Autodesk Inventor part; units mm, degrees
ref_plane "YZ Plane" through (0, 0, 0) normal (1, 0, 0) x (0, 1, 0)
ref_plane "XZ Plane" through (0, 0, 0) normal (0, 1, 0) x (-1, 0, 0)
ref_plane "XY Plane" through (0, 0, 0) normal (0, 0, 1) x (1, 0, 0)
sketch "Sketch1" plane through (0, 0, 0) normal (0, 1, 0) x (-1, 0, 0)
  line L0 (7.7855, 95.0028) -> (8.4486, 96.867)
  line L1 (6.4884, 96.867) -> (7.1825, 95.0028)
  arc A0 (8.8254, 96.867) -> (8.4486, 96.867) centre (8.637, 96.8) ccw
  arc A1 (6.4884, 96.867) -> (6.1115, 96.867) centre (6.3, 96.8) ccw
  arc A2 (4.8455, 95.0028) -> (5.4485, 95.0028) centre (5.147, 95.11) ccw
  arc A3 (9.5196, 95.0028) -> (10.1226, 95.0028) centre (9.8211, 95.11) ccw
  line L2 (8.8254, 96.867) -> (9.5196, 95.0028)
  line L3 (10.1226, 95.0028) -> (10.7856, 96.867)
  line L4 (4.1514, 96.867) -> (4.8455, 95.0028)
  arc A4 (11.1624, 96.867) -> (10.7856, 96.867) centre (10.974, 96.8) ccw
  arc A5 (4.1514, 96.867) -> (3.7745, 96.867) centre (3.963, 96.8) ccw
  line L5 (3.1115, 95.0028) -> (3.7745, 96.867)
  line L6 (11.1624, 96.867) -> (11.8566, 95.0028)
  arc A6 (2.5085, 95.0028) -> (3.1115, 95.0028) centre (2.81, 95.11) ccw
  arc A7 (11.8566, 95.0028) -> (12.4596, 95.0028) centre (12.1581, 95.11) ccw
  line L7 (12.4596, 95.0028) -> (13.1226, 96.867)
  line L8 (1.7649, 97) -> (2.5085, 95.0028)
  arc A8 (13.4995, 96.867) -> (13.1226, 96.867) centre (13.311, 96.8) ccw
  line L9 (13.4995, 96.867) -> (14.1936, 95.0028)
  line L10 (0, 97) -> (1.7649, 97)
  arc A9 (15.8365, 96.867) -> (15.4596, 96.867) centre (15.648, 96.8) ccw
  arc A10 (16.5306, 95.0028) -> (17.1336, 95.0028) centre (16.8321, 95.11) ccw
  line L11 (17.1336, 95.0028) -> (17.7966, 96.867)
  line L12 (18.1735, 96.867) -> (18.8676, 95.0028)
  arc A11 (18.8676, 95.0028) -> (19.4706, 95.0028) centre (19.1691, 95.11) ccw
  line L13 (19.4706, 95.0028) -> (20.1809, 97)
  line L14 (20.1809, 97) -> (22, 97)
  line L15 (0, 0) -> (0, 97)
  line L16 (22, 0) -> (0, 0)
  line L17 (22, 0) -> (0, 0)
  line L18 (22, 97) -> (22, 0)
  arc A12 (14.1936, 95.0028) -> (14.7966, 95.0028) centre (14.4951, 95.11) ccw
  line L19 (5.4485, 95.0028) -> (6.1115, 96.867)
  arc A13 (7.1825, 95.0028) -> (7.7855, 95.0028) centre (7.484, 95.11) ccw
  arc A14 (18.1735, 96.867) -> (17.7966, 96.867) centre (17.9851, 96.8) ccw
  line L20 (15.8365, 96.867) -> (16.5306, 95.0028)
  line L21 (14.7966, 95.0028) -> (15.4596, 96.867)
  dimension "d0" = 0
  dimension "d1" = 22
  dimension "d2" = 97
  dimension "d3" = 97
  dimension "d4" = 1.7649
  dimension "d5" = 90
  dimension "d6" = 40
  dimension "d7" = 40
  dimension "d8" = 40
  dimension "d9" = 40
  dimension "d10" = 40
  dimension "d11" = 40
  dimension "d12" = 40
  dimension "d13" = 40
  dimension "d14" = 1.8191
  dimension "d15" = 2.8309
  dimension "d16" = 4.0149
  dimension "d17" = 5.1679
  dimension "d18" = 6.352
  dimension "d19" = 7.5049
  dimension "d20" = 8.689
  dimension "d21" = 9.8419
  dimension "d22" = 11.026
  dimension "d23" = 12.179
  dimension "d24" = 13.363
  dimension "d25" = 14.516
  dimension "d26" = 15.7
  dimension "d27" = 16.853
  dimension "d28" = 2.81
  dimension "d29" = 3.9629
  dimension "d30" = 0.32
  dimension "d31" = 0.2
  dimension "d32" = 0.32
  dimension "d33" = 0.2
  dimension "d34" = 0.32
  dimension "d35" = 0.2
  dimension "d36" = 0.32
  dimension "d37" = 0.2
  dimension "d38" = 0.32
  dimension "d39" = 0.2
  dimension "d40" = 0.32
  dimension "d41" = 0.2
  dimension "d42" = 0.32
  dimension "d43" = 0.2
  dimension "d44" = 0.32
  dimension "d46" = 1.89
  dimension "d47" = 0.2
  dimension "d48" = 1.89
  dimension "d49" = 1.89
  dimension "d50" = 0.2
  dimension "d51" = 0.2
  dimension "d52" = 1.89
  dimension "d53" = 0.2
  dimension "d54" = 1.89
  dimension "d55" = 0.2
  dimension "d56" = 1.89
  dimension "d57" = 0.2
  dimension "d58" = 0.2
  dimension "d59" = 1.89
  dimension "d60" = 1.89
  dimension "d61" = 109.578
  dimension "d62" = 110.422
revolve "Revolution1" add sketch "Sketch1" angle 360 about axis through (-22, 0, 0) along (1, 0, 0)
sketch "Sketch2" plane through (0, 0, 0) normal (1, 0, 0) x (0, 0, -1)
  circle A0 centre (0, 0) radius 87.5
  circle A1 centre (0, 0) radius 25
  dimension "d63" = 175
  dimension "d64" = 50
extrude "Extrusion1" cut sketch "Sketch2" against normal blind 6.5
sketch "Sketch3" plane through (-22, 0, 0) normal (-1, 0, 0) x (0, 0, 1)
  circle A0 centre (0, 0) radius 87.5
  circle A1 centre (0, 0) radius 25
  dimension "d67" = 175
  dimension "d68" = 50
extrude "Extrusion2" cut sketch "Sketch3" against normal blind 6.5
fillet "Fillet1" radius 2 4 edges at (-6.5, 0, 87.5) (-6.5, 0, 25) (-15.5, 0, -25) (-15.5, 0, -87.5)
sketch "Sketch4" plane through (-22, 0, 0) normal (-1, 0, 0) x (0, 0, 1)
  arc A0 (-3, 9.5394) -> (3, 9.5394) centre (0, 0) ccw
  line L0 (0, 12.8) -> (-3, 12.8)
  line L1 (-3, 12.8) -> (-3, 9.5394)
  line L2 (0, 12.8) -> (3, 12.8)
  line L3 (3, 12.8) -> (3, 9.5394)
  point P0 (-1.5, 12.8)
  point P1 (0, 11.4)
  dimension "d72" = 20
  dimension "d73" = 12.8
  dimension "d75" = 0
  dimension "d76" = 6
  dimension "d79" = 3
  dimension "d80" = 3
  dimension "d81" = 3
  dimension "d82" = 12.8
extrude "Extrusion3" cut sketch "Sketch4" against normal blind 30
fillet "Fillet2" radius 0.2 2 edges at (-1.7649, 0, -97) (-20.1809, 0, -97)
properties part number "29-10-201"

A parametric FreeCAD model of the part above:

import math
import FreeCAD as App
import Part
import Sketcher
Q = App.Units.Quantity


def edges_at(feature, points):
    """Names of the edges that pass closest to the given points."""
    edges = feature.Shape.Edges
    near = lambda p: min(range(len(edges)), key=lambda i: edges[i].distToShape(Part.Vertex(*p))[0])
    return sorted({f"Edge{near(p) + 1}" for p in points})

doc = App.newDocument("Part")
body = doc.addObject("PartDesign::Body", "Body")

# Sketch on XZ plane
sketch1 = body.newObject("Sketcher::SketchObject", "Sketch")
sketch1.AttachmentSupport = (doc.getObject("XZ_Plane"), [""])
sketch1.MapMode = "FlatFace"
sketch1.addGeometry([
    Part.LineSegment(App.Vector(-8.45, 96.87, 0), App.Vector(-7.79, 95, 0)),  # 0
    Part.ArcOfCircle(Part.Circle(App.Vector(-7.48, 95.11, 0), App.Vector(0, 0, 1), 0.32), math.radians(-160), math.radians(-20)),  # 1
    Part.LineSegment(App.Vector(-7.18, 95, 0), App.Vector(-6.49, 96.87, 0)),  # 2
    Part.ArcOfCircle(Part.Circle(App.Vector(-6.3, 96.8, 0), App.Vector(0, 0, 1), 0.2), math.radians(20), math.radians(160)),  # 3
    Part.LineSegment(App.Vector(-6.11, 96.87, 0), App.Vector(-5.45, 95, 0)),  # 4
    Part.ArcOfCircle(Part.Circle(App.Vector(-5.15, 95.11, 0), App.Vector(0, 0, 1), 0.32), math.radians(-160), math.radians(-20)),  # 5
    Part.LineSegment(App.Vector(-4.85, 95, 0), App.Vector(-4.15, 96.87, 0)),  # 6
    Part.ArcOfCircle(Part.Circle(App.Vector(-3.96, 96.8, 0), App.Vector(0, 0, 1), 0.2), math.radians(20), math.radians(160)),  # 7
    Part.LineSegment(App.Vector(-3.77, 96.87, 0), App.Vector(-3.11, 95, 0)),  # 8
    Part.ArcOfCircle(Part.Circle(App.Vector(-2.81, 95.11, 0), App.Vector(0, 0, 1), 0.32), math.radians(-160), math.radians(-20)),  # 9
    Part.LineSegment(App.Vector(-2.51, 95, 0), App.Vector(-1.76, 97, 0)),  # 10
    Part.LineSegment(App.Vector(-1.76, 97, 0), App.Vector(0, 97, 0)),  # 11
    Part.LineSegment(App.Vector(0, 97, 0), App.Vector(0, 0, 0)),  # 12
    Part.LineSegment(App.Vector(0, 0, 0), App.Vector(-22, 0, 0)),  # 13
    Part.LineSegment(App.Vector(-22, 0, 0), App.Vector(-22, 97, 0)),  # 14
    Part.LineSegment(App.Vector(-22, 97, 0), App.Vector(-20.18, 97, 0)),  # 15
    Part.LineSegment(App.Vector(-20.18, 97, 0), App.Vector(-19.47, 95, 0)),  # 16
    Part.ArcOfCircle(Part.Circle(App.Vector(-19.17, 95.11, 0), App.Vector(0, 0, 1), 0.32), math.radians(-160), math.radians(-20)),  # 17
    Part.LineSegment(App.Vector(-18.87, 95, 0), App.Vector(-18.17, 96.87, 0)),  # 18
    Part.ArcOfCircle(Part.Circle(App.Vector(-17.99, 96.8, 0), App.Vector(0, 0, 1), 0.2), math.radians(20), math.radians(160)),  # 19
    Part.LineSegment(App.Vector(-17.8, 96.87, 0), App.Vector(-17.13, 95, 0)),  # 20
    Part.ArcOfCircle(Part.Circle(App.Vector(-16.83, 95.11, 0), App.Vector(0, 0, 1), 0.32), math.radians(-160), math.radians(-20)),  # 21
    Part.LineSegment(App.Vector(-16.53, 95, 0), App.Vector(-15.84, 96.87, 0)),  # 22
    Part.ArcOfCircle(Part.Circle(App.Vector(-15.65, 96.8, 0), App.Vector(0, 0, 1), 0.2), math.radians(20), math.radians(160)),  # 23
    Part.LineSegment(App.Vector(-15.46, 96.87, 0), App.Vector(-14.8, 95, 0)),  # 24
    Part.ArcOfCircle(Part.Circle(App.Vector(-14.5, 95.11, 0), App.Vector(0, 0, 1), 0.32), math.radians(-160), math.radians(-20)),  # 25
    Part.LineSegment(App.Vector(-14.19, 95, 0), App.Vector(-13.5, 96.87, 0)),  # 26
    Part.ArcOfCircle(Part.Circle(App.Vector(-13.31, 96.8, 0), App.Vector(0, 0, 1), 0.2), math.radians(20), math.radians(160)),  # 27
    Part.LineSegment(App.Vector(-13.12, 96.87, 0), App.Vector(-12.46, 95, 0)),  # 28
    Part.ArcOfCircle(Part.Circle(App.Vector(-12.16, 95.11, 0), App.Vector(0, 0, 1), 0.32), math.radians(-160), math.radians(-20)),  # 29
    Part.LineSegment(App.Vector(-11.86, 95, 0), App.Vector(-11.16, 96.87, 0)),  # 30
    Part.ArcOfCircle(Part.Circle(App.Vector(-10.97, 96.8, 0), App.Vector(0, 0, 1), 0.2), math.radians(20), math.radians(160)),  # 31
    Part.LineSegment(App.Vector(-10.79, 96.87, 0), App.Vector(-10.12, 95, 0)),  # 32
    Part.ArcOfCircle(Part.Circle(App.Vector(-9.82, 95.11, 0), App.Vector(0, 0, 1), 0.32), math.radians(-160), math.radians(-20)),  # 33
    Part.LineSegment(App.Vector(-9.52, 95, 0), App.Vector(-8.83, 96.87, 0)),  # 34
    Part.ArcOfCircle(Part.Circle(App.Vector(-8.64, 96.8, 0), App.Vector(0, 0, 1), 0.2), math.radians(20), math.radians(160)),  # 35
], False)
sketch1.addConstraint([
    Sketcher.Constraint("Tangent", 0, 2, 1, 1),
    Sketcher.Constraint("Coincident", 1, 2, 2, 1),
    Sketcher.Constraint("Coincident", 2, 2, 3, 2),
    Sketcher.Constraint("Tangent", 3, 1, 4, 1),
    Sketcher.Constraint("Tangent", 4, 2, 5, 1),
    Sketcher.Constraint("Coincident", 5, 2, 6, 1),
    Sketcher.Constraint("Coincident", 6, 2, 7, 2),
    Sketcher.Constraint("Tangent", 7, 1, 8, 1),
    Sketcher.Constraint("Tangent", 8, 2, 9, 1),
    Sketcher.Constraint("Coincident", 9, 2, 10, 1),
    Sketcher.Constraint("Coincident", 10, 2, 11, 1),
    Sketcher.Constraint("Coincident", 11, 2, 12, 1),
    Sketcher.Constraint("Coincident", 12, 2, 13, 1),
    Sketcher.Constraint("Coincident", 13, 2, 14, 1),
    Sketcher.Constraint("Coincident", 14, 2, 15, 1),
    Sketcher.Constraint("Coincident", 15, 2, 16, 1),
    Sketcher.Constraint("Tangent", 16, 2, 17, 1),
    Sketcher.Constraint("Coincident", 17, 2, 18, 1),
    Sketcher.Constraint("Coincident", 18, 2, 19, 2),
    Sketcher.Constraint("Tangent", 19, 1, 20, 1),
    Sketcher.Constraint("Tangent", 20, 2, 21, 1),
    Sketcher.Constraint("Coincident", 21, 2, 22, 1),
    Sketcher.Constraint("Coincident", 22, 2, 23, 2),
    Sketcher.Constraint("Tangent", 23, 1, 24, 1),
    Sketcher.Constraint("Tangent", 24, 2, 25, 1),
    Sketcher.Constraint("Coincident", 25, 2, 26, 1),
    Sketcher.Constraint("Coincident", 26, 2, 27, 2),
    Sketcher.Constraint("Tangent", 27, 1, 28, 1),
    Sketcher.Constraint("Tangent", 28, 2, 29, 1),
    Sketcher.Constraint("Coincident", 29, 2, 30, 1),
    Sketcher.Constraint("Coincident", 30, 2, 31, 2),
    Sketcher.Constraint("Tangent", 31, 1, 32, 1),
    Sketcher.Constraint("Tangent", 32, 2, 33, 1),
    Sketcher.Constraint("Coincident", 33, 2, 34, 1),
    Sketcher.Constraint("Coincident", 34, 2, 35, 2),
    Sketcher.Constraint("Tangent", 35, 1, 0, 1),
    Sketcher.Constraint("Horizontal", 11),
    Sketcher.Constraint("Vertical", 12),
    Sketcher.Constraint("Horizontal", 13),
    Sketcher.Constraint("Vertical", 14),
    Sketcher.Constraint("Horizontal", 15),
    Sketcher.Constraint("Coincident", 12, 2, -1, 1),
    Sketcher.Constraint("Equal", 1, 5),
    Sketcher.Constraint("Equal", 3, 7),
    Sketcher.Constraint("Equal", 5, 9),
    Sketcher.Constraint("Equal", 9, 17),
    Sketcher.Constraint("Equal", 7, 19),
    Sketcher.Constraint("Equal", 17, 21),
    Sketcher.Constraint("Equal", 19, 23),
    Sketcher.Constraint("Equal", 21, 25),
    Sketcher.Constraint("Equal", 23, 27),
    Sketcher.Constraint("Equal", 25, 29),
    Sketcher.Constraint("Equal", 27, 31),
    Sketcher.Constraint("Equal", 29, 33),
    Sketcher.Constraint("Equal", 31, 35),
    Sketcher.Constraint("Parallel", 0, 4),
    Sketcher.Constraint("Parallel", 2, 6),
    Sketcher.Constraint("Parallel", 4, 8),
    Sketcher.Constraint("Parallel", 6, 10),
    Sketcher.Constraint("Parallel", 8, 16),
    Sketcher.Constraint("Parallel", 10, 18),
    Sketcher.Constraint("Parallel", 16, 20),
    Sketcher.Constraint("Parallel", 18, 22),
    Sketcher.Constraint("Parallel", 20, 24),
    Sketcher.Constraint("Parallel", 22, 26),
    Sketcher.Constraint("Parallel", 24, 28),
    Sketcher.Constraint("Parallel", 26, 30),
    Sketcher.Constraint("Parallel", 28, 32),
    Sketcher.Constraint("Parallel", 30, 34),
    Sketcher.Constraint("Horizontal", 1, 3, 5, 3),
    Sketcher.Constraint("Horizontal", 3, 3, 7, 3),
    Sketcher.Constraint("Horizontal", 5, 3, 9, 3),
    Sketcher.Constraint("Horizontal", 9, 3, 17, 3),
    Sketcher.Constraint("Horizontal", 7, 3, 19, 3),
    Sketcher.Constraint("Horizontal", 17, 3, 21, 3),
    Sketcher.Constraint("Horizontal", 19, 3, 23, 3),
    Sketcher.Constraint("Horizontal", 21, 3, 25, 3),
    Sketcher.Constraint("Horizontal", 23, 3, 27, 3),
    Sketcher.Constraint("Horizontal", 25, 3, 29, 3),
    Sketcher.Constraint("Horizontal", 27, 3, 31, 3),
    Sketcher.Constraint("Horizontal", 29, 3, 33, 3),
    Sketcher.Constraint("Horizontal", 31, 3, 35, 3),
    Sketcher.Constraint("Horizontal", 0, 2, 1, 2),
    Sketcher.Constraint("Horizontal", 2, 2, 3, 1),
    Sketcher.Constraint("Horizontal", 4, 2, 5, 2),
    Sketcher.Constraint("Horizontal", 3, 1, 6, 2),
    Sketcher.Constraint("Horizontal", 8, 2, 9, 2),
    Sketcher.Constraint("Horizontal", 11, 2, 14, 2),
    Sketcher.Constraint("Horizontal", 16, 2, 17, 2),
    Sketcher.Constraint("Horizontal", 7, 1, 18, 2),
    Sketcher.Constraint("Horizontal", 20, 2, 21, 2),
    Sketcher.Constraint("Horizontal", 19, 1, 22, 2),
    Sketcher.Constraint("Horizontal", 24, 2, 25, 2),
    Sketcher.Constraint("Horizontal", 23, 1, 26, 2),
    Sketcher.Constraint("Horizontal", 28, 2, 29, 2),
    Sketcher.Constraint("Horizontal", 27, 1, 30, 2),
    Sketcher.Constraint("Horizontal", 32, 2, 33, 2),
    Sketcher.Constraint("Horizontal", 31, 1, 34, 2),
    Sketcher.Constraint("Radius", 3, Q("0.2 mm")),
    Sketcher.Constraint("DistanceX", 13, 2, 13, 1, Q("22 mm")),
    Sketcher.Constraint("DistanceY", 12, 2, 12, 1, Q("97 mm")),
    Sketcher.Constraint("Radius", 1, Q("0.32 mm")),
    Sketcher.Constraint("DistanceY", 7, 3, 10, 2, Q("0.2 mm")),
    Sketcher.Constraint("DistanceX", 11, 1, 11, 2, Q("1.765 mm")),
    Sketcher.Constraint("DistanceX", 15, 1, 15, 2, Q("1.819 mm")),
    Sketcher.Constraint("DistanceX", 9, 3, -1, 1, Q("2.81 mm")),
    Sketcher.Constraint("DistanceY", 9, 3, 10, 2, Q("1.89 mm")),
])
revolution = body.newObject("PartDesign::Revolution", "Revolution")
revolution.Profile = sketch1
revolution.ReferenceAxis = (sketch1, ["H_Axis"])
revolution.Angle = 360

# Sketch on YZ plane
sketch2 = body.newObject("Sketcher::SketchObject", "Sketch001")
sketch2.AttachmentSupport = (doc.getObject("YZ_Plane"), [""])
sketch2.MapMode = "FlatFace"
sketch2.addGeometry([
    Part.Circle(App.Vector(0, 0, 0), App.Vector(0, 0, 1), 88),
    Part.Circle(App.Vector(0, 0, 0), App.Vector(0, 0, 1), 25),
], False)
sketch2.addConstraint([
    Sketcher.Constraint("Coincident", 0, 3, -1, 1),
    Sketcher.Constraint("Coincident", 1, 3, -1, 1),
    Sketcher.Constraint("Diameter", 0, Q("175 mm")),
    Sketcher.Constraint("Diameter", 1, Q("50 mm")),
])
pocket1 = body.newObject("PartDesign::Pocket", "Pocket")
pocket1.Profile = sketch2
pocket1.Length = 6.5

# Sketch on YZ plane
sketch3 = body.newObject("Sketcher::SketchObject", "Sketch002")
sketch3.AttachmentSupport = (doc.getObject("YZ_Plane"), [""])
sketch3.MapMode = "FlatFace"
sketch3.AttachmentOffset = App.Placement(App.Vector(0, 0, -22), App.Rotation())
sketch3.addGeometry([
    Part.Circle(App.Vector(0, 0, 0), App.Vector(0, 0, 1), 88),
    Part.Circle(App.Vector(0, 0, 0), App.Vector(0, 0, 1), 25),
], False)
sketch3.addConstraint([
    Sketcher.Constraint("Coincident", 0, 3, -1, 1),
    Sketcher.Constraint("Coincident", 1, 3, -1, 1),
    Sketcher.Constraint("Diameter", 0, Q("175 mm")),
    Sketcher.Constraint("Diameter", 1, Q("50 mm")),
])
pocket2 = body.newObject("PartDesign::Pocket", "Pocket001")
pocket2.Profile = sketch3
pocket2.Length = 6.5
pocket2.Reversed = True
doc.recompute()

fillet = body.newObject("PartDesign::Fillet", "Fillet")
fillet.Base = (pocket2, edges_at(pocket2, [
    (-6.5, 0, 87.5),
    (-6.5, 0, 25),
    (-15.5, 0, -25),
    (-15.5, 0, -87.5),
]))
fillet.Radius = 2

# Sketch on YZ plane
sketch4 = body.newObject("Sketcher::SketchObject", "Sketch003")
sketch4.AttachmentSupport = (doc.getObject("YZ_Plane"), [""])
sketch4.MapMode = "FlatFace"
sketch4.AttachmentOffset = App.Placement(App.Vector(0, 0, -22), App.Rotation())
sketch4.addGeometry([
    Part.LineSegment(App.Vector(12.8, -3, 0), App.Vector(9.5, -3, 0)),
    Part.ArcOfCircle(Part.Circle(App.Vector(0, 0, 0), App.Vector(0, 0, 1), 10), math.radians(17), math.radians(343)),
    Part.LineSegment(App.Vector(9.5, 3, 0), App.Vector(12.8, 3, 0)),
    Part.LineSegment(App.Vector(12.8, 3, 0), App.Vector(12.8, -3, 0)),
], False)
sketch4.addConstraint([
    Sketcher.Constraint("Coincident", 0, 2, 1, 2),
    Sketcher.Constraint("Coincident", 1, 1, 2, 1),
    Sketcher.Constraint("Coincident", 2, 2, 3, 1),
    Sketcher.Constraint("Coincident", 3, 2, 0, 1),
    Sketcher.Constraint("Horizontal", 0),
    Sketcher.Constraint("Horizontal", 2),
    Sketcher.Constraint("Vertical", 3),
    Sketcher.Constraint("Coincident", 1, 3, -1, 1),
    Sketcher.Constraint("Vertical", 0, 2, 1, 1),
    Sketcher.Constraint("Radius", 1, Q("10 mm")),
    Sketcher.Constraint("DistanceY", 3, 2, 3, 1, Q("6 mm")),
    Sketcher.Constraint("DistanceX", -1, 1, 2, 2, Q("12.8 mm")),
])
pocket3 = body.newObject("PartDesign::Pocket", "Pocket002")
pocket3.Profile = sketch4
pocket3.Length = 30
pocket3.Reversed = True
doc.recompute()

fillet2 = body.newObject("PartDesign::Fillet", "Fillet001")
fillet2.Base = (pocket3, edges_at(pocket3, [(-1.765, 0, -97), (-20.181, 0, -97)]))
fillet2.Radius = 0.2

doc.recompute()
